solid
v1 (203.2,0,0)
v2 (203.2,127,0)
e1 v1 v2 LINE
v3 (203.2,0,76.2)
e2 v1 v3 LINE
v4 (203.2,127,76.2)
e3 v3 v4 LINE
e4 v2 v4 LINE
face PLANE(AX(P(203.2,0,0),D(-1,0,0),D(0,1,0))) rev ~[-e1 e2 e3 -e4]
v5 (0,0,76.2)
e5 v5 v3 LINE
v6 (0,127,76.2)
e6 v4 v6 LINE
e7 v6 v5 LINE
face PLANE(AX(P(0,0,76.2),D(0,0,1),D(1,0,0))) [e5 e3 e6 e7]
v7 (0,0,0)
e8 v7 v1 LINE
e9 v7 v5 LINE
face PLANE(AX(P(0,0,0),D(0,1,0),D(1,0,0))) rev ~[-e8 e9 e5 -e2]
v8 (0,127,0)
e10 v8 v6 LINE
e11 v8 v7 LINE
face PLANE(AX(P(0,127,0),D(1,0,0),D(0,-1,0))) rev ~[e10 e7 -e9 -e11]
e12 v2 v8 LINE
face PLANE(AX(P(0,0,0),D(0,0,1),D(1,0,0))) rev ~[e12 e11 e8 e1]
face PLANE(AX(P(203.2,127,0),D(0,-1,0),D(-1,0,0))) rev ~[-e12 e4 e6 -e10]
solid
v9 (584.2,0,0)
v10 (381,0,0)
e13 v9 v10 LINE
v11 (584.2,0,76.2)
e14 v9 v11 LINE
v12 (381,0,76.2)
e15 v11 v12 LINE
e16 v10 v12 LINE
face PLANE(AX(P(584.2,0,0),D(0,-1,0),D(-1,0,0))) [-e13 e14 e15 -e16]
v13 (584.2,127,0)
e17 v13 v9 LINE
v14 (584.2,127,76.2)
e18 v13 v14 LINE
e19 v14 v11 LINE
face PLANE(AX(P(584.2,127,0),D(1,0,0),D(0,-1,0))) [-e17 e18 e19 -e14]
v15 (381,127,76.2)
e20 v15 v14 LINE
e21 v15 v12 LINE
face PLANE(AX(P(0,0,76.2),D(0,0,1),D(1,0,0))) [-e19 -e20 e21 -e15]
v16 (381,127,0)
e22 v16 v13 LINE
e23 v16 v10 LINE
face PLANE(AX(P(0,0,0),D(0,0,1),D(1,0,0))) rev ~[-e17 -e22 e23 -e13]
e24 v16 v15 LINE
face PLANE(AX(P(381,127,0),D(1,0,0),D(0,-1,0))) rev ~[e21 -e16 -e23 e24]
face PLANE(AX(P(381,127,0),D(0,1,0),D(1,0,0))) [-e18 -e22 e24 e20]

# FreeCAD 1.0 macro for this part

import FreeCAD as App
import Part
import Sketcher
from FreeCAD import Vector
Q = App.Units.Quantity

doc = App.newDocument("Part")
body = doc.addObject("PartDesign::Body", "Body")
body.AllowCompound = True

# Sketch on XY plane
sketch1 = body.newObject("Sketcher::SketchObject", "Sketch")
sketch1.AttachmentSupport = (doc.getObject("XY_Plane"), [""])
sketch1.MapMode = "FlatFace"
sketch1.addGeometry([
    Part.LineSegment(Vector(0, 127, 0), Vector(0, 0, 0)),  # 0
    Part.LineSegment(Vector(0, 0, 0), Vector(203, 0, 0)),  # 1
    Part.LineSegment(Vector(203, 0, 0), Vector(203, 127, 0)),  # 2
    Part.LineSegment(Vector(203, 127, 0), Vector(0, 127, 0)),  # 3
    Part.LineSegment(Vector(381, 127, 0), Vector(381, 0, 0)),  # 4
    Part.LineSegment(Vector(381, 0, 0), Vector(584, 0, 0)),  # 5
    Part.LineSegment(Vector(584, 0, 0), Vector(584, 127, 0)),  # 6
    Part.LineSegment(Vector(584, 127, 0), Vector(381, 127, 0)),  # 7
], False)
sketch1.addConstraint([
    Sketcher.Constraint("Coincident", 0, 2, 1, 1),
    Sketcher.Constraint("Coincident", 1, 2, 2, 1),
    Sketcher.Constraint("Coincident", 2, 2, 3, 1),
    Sketcher.Constraint("Coincident", 3, 2, 0, 1),
    Sketcher.Constraint("Coincident", 4, 2, 5, 1),
    Sketcher.Constraint("Coincident", 5, 2, 6, 1),
    Sketcher.Constraint("Coincident", 6, 2, 7, 1),
    Sketcher.Constraint("Coincident", 7, 2, 4, 1),
    Sketcher.Constraint("Vertical", 0),
    Sketcher.Constraint("Horizontal", 1),
    Sketcher.Constraint("Vertical", 2),
    Sketcher.Constraint("Horizontal", 3),
    Sketcher.Constraint("Vertical", 4),
    Sketcher.Constraint("Horizontal", 5),
    Sketcher.Constraint("Vertical", 6),
    Sketcher.Constraint("Horizontal", 7),
    Sketcher.Constraint("Coincident", 0, 2, -1, 1),
    Sketcher.Constraint("PointOnObject", 4, 2, -1),
    Sketcher.Constraint("Horizontal", 3, 2, 6, 2),
    Sketcher.Constraint("Equal", 3, 5),
    Sketcher.Constraint("DistanceX", 1, 1, 1, 2, Q("8 in")),
    Sketcher.Constraint("DistanceY", 0, 2, 0, 1, Q("5 in")),
    Sketcher.Constraint("DistanceX", -1, 1, 5, 2, Q("23 in")),
])
pad1 = body.newObject("PartDesign::Pad", "Pad")
pad1.Profile = sketch1
pad1.Length = Q("3 in")

doc.recompute()
